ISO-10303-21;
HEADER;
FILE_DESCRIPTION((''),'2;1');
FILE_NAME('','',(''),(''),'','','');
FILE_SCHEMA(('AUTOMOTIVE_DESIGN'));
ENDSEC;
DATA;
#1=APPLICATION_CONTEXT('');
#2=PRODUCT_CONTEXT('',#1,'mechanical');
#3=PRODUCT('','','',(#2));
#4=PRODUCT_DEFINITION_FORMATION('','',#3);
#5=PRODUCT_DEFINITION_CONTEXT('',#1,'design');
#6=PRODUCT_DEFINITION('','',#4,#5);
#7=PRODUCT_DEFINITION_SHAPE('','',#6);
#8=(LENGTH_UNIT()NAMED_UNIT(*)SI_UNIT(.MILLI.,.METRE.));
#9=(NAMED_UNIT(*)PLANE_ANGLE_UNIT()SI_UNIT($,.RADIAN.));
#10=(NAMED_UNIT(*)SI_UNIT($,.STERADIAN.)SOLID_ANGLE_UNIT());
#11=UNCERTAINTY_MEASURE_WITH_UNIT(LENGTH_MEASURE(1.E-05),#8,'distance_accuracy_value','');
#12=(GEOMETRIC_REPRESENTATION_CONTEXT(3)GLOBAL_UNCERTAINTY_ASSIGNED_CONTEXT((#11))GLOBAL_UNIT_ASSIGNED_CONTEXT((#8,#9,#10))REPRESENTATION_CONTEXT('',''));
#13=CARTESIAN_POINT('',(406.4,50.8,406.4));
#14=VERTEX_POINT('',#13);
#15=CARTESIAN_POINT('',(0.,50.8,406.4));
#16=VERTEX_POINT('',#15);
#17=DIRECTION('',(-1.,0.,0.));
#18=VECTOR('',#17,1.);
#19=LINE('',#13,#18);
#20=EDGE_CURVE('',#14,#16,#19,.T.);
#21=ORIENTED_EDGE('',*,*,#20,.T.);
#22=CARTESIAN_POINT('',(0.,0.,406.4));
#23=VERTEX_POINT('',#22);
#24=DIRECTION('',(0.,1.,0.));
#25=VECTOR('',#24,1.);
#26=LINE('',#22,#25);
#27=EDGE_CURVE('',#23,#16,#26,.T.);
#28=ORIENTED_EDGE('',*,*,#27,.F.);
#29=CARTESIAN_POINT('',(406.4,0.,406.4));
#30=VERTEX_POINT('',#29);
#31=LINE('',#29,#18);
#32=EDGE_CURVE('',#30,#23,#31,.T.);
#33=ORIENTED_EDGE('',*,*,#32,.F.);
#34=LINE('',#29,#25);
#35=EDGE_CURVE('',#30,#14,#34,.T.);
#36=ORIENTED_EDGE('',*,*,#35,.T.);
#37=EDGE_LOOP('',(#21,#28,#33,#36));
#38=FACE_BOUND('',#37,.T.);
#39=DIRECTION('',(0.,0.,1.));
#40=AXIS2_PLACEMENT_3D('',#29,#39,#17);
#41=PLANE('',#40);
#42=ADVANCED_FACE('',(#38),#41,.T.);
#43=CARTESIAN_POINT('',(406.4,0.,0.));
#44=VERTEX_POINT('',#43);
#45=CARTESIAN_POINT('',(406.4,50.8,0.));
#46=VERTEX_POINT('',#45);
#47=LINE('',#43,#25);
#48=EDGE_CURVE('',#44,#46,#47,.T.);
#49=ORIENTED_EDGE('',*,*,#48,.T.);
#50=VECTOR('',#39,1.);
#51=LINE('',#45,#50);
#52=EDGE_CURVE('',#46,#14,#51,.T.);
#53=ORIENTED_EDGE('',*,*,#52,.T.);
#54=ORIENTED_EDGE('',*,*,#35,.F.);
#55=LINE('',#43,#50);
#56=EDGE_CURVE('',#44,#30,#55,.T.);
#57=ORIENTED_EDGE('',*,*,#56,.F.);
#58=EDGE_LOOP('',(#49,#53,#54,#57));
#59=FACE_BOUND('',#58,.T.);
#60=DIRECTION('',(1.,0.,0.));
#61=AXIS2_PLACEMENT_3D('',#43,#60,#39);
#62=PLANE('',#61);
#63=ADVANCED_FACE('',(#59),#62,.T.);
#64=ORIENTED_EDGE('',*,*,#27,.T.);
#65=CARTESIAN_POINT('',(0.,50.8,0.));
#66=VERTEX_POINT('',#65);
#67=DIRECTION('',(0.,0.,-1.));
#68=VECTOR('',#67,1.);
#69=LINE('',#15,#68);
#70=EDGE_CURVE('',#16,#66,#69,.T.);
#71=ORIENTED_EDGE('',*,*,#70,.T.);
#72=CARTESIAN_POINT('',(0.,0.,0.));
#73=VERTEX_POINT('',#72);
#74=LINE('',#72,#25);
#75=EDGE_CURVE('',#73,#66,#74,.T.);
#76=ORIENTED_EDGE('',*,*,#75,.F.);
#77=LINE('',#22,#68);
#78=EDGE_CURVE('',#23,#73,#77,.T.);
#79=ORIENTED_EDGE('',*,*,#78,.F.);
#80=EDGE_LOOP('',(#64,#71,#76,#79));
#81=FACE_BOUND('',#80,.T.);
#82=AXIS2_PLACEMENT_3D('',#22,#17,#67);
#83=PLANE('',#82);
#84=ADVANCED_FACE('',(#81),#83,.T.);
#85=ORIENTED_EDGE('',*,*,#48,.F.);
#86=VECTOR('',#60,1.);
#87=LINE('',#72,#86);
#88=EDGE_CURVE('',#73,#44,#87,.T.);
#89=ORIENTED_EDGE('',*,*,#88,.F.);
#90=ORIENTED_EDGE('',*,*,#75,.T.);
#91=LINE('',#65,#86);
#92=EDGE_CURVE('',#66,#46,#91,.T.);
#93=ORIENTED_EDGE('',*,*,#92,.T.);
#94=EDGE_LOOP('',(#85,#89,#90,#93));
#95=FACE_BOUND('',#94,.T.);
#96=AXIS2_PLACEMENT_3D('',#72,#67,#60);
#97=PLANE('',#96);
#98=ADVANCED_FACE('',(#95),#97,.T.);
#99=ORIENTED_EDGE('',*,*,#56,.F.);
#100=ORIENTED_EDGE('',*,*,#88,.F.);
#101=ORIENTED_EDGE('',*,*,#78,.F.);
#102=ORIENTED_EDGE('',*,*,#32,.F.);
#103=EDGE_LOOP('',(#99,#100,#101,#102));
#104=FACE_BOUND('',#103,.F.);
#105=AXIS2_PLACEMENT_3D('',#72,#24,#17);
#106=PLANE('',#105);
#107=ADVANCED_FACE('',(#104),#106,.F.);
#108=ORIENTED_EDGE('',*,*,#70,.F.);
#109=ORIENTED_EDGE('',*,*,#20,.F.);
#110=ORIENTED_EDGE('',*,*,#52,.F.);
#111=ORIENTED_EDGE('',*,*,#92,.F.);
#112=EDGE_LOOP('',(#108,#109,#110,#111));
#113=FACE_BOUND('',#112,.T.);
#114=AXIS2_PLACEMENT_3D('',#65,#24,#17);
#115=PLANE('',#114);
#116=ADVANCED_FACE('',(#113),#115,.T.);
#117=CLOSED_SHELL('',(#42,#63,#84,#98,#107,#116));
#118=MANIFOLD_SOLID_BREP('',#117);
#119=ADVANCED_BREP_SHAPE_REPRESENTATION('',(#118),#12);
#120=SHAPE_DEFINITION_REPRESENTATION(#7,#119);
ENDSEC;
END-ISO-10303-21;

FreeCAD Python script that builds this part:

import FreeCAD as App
import Part
import Sketcher

V = App.Vector
Q = App.Units.Quantity

doc = App.newDocument("Part")
params = doc.addObject("Spreadsheet::Sheet", "Params")
for row, (alias, value) in enumerate([
    ("sketch1_width", "16 in"),
    ("pad1_length", "2 in"),
], start=1):
    params.set(f"A{row}", alias)
    params.set(f"B{row}", "=" + value)
    params.setAlias(f"B{row}", alias)

body = doc.addObject("PartDesign::Body", "Body")

# Sketch on XZ plane
sketch1 = doc.addObject("Sketcher::SketchObject", "Sketch")
body.addObject(sketch1)
sketch1.AttachmentSupport = (doc.XZ_Plane, [""])
sketch1.MapMode = "FlatFace"
sketch1.addGeometry(Part.LineSegment(V(406, 0, 0), V(0, 0, 0)), False)
sketch1.addGeometry(Part.LineSegment(V(0, 0, 0), V(0, 406, 0)), False)
sketch1.addGeometry(Part.LineSegment(V(0, 406, 0), V(406, 406, 0)), False)
sketch1.addGeometry(Part.LineSegment(V(406, 406, 0), V(406, 0, 0)), False)
sketch1.addConstraint(Sketcher.Constraint("Coincident", 0, 2, 1, 1))
sketch1.addConstraint(Sketcher.Constraint("Coincident", 1, 2, 2, 1))
sketch1.addConstraint(Sketcher.Constraint("Coincident", 2, 2, 3, 1))
sketch1.addConstraint(Sketcher.Constraint("Coincident", 3, 2, 0, 1))
sketch1.addConstraint(Sketcher.Constraint("Horizontal", 0))
sketch1.addConstraint(Sketcher.Constraint("Vertical", 1))
sketch1.addConstraint(Sketcher.Constraint("Horizontal", 2))
sketch1.addConstraint(Sketcher.Constraint("Vertical", 3))
sketch1.addConstraint(Sketcher.Constraint("Coincident", 0, 2, -1, 1))
sketch1.addConstraint(Sketcher.Constraint("Equal", 2, 1))
sketch1.addConstraint(Sketcher.Constraint("DistanceX", 0, 2, 0, 1, Q("16 in")))
sketch1.setExpression("Constraints[10]", "Params.sketch1_width")
pad1 = doc.addObject("PartDesign::Pad", "Pad")
body.addObject(pad1)
pad1.Profile = sketch1
pad1.setExpression("Length", "Params.pad1_length")
pad1.Reversed = True

doc.recompute()
